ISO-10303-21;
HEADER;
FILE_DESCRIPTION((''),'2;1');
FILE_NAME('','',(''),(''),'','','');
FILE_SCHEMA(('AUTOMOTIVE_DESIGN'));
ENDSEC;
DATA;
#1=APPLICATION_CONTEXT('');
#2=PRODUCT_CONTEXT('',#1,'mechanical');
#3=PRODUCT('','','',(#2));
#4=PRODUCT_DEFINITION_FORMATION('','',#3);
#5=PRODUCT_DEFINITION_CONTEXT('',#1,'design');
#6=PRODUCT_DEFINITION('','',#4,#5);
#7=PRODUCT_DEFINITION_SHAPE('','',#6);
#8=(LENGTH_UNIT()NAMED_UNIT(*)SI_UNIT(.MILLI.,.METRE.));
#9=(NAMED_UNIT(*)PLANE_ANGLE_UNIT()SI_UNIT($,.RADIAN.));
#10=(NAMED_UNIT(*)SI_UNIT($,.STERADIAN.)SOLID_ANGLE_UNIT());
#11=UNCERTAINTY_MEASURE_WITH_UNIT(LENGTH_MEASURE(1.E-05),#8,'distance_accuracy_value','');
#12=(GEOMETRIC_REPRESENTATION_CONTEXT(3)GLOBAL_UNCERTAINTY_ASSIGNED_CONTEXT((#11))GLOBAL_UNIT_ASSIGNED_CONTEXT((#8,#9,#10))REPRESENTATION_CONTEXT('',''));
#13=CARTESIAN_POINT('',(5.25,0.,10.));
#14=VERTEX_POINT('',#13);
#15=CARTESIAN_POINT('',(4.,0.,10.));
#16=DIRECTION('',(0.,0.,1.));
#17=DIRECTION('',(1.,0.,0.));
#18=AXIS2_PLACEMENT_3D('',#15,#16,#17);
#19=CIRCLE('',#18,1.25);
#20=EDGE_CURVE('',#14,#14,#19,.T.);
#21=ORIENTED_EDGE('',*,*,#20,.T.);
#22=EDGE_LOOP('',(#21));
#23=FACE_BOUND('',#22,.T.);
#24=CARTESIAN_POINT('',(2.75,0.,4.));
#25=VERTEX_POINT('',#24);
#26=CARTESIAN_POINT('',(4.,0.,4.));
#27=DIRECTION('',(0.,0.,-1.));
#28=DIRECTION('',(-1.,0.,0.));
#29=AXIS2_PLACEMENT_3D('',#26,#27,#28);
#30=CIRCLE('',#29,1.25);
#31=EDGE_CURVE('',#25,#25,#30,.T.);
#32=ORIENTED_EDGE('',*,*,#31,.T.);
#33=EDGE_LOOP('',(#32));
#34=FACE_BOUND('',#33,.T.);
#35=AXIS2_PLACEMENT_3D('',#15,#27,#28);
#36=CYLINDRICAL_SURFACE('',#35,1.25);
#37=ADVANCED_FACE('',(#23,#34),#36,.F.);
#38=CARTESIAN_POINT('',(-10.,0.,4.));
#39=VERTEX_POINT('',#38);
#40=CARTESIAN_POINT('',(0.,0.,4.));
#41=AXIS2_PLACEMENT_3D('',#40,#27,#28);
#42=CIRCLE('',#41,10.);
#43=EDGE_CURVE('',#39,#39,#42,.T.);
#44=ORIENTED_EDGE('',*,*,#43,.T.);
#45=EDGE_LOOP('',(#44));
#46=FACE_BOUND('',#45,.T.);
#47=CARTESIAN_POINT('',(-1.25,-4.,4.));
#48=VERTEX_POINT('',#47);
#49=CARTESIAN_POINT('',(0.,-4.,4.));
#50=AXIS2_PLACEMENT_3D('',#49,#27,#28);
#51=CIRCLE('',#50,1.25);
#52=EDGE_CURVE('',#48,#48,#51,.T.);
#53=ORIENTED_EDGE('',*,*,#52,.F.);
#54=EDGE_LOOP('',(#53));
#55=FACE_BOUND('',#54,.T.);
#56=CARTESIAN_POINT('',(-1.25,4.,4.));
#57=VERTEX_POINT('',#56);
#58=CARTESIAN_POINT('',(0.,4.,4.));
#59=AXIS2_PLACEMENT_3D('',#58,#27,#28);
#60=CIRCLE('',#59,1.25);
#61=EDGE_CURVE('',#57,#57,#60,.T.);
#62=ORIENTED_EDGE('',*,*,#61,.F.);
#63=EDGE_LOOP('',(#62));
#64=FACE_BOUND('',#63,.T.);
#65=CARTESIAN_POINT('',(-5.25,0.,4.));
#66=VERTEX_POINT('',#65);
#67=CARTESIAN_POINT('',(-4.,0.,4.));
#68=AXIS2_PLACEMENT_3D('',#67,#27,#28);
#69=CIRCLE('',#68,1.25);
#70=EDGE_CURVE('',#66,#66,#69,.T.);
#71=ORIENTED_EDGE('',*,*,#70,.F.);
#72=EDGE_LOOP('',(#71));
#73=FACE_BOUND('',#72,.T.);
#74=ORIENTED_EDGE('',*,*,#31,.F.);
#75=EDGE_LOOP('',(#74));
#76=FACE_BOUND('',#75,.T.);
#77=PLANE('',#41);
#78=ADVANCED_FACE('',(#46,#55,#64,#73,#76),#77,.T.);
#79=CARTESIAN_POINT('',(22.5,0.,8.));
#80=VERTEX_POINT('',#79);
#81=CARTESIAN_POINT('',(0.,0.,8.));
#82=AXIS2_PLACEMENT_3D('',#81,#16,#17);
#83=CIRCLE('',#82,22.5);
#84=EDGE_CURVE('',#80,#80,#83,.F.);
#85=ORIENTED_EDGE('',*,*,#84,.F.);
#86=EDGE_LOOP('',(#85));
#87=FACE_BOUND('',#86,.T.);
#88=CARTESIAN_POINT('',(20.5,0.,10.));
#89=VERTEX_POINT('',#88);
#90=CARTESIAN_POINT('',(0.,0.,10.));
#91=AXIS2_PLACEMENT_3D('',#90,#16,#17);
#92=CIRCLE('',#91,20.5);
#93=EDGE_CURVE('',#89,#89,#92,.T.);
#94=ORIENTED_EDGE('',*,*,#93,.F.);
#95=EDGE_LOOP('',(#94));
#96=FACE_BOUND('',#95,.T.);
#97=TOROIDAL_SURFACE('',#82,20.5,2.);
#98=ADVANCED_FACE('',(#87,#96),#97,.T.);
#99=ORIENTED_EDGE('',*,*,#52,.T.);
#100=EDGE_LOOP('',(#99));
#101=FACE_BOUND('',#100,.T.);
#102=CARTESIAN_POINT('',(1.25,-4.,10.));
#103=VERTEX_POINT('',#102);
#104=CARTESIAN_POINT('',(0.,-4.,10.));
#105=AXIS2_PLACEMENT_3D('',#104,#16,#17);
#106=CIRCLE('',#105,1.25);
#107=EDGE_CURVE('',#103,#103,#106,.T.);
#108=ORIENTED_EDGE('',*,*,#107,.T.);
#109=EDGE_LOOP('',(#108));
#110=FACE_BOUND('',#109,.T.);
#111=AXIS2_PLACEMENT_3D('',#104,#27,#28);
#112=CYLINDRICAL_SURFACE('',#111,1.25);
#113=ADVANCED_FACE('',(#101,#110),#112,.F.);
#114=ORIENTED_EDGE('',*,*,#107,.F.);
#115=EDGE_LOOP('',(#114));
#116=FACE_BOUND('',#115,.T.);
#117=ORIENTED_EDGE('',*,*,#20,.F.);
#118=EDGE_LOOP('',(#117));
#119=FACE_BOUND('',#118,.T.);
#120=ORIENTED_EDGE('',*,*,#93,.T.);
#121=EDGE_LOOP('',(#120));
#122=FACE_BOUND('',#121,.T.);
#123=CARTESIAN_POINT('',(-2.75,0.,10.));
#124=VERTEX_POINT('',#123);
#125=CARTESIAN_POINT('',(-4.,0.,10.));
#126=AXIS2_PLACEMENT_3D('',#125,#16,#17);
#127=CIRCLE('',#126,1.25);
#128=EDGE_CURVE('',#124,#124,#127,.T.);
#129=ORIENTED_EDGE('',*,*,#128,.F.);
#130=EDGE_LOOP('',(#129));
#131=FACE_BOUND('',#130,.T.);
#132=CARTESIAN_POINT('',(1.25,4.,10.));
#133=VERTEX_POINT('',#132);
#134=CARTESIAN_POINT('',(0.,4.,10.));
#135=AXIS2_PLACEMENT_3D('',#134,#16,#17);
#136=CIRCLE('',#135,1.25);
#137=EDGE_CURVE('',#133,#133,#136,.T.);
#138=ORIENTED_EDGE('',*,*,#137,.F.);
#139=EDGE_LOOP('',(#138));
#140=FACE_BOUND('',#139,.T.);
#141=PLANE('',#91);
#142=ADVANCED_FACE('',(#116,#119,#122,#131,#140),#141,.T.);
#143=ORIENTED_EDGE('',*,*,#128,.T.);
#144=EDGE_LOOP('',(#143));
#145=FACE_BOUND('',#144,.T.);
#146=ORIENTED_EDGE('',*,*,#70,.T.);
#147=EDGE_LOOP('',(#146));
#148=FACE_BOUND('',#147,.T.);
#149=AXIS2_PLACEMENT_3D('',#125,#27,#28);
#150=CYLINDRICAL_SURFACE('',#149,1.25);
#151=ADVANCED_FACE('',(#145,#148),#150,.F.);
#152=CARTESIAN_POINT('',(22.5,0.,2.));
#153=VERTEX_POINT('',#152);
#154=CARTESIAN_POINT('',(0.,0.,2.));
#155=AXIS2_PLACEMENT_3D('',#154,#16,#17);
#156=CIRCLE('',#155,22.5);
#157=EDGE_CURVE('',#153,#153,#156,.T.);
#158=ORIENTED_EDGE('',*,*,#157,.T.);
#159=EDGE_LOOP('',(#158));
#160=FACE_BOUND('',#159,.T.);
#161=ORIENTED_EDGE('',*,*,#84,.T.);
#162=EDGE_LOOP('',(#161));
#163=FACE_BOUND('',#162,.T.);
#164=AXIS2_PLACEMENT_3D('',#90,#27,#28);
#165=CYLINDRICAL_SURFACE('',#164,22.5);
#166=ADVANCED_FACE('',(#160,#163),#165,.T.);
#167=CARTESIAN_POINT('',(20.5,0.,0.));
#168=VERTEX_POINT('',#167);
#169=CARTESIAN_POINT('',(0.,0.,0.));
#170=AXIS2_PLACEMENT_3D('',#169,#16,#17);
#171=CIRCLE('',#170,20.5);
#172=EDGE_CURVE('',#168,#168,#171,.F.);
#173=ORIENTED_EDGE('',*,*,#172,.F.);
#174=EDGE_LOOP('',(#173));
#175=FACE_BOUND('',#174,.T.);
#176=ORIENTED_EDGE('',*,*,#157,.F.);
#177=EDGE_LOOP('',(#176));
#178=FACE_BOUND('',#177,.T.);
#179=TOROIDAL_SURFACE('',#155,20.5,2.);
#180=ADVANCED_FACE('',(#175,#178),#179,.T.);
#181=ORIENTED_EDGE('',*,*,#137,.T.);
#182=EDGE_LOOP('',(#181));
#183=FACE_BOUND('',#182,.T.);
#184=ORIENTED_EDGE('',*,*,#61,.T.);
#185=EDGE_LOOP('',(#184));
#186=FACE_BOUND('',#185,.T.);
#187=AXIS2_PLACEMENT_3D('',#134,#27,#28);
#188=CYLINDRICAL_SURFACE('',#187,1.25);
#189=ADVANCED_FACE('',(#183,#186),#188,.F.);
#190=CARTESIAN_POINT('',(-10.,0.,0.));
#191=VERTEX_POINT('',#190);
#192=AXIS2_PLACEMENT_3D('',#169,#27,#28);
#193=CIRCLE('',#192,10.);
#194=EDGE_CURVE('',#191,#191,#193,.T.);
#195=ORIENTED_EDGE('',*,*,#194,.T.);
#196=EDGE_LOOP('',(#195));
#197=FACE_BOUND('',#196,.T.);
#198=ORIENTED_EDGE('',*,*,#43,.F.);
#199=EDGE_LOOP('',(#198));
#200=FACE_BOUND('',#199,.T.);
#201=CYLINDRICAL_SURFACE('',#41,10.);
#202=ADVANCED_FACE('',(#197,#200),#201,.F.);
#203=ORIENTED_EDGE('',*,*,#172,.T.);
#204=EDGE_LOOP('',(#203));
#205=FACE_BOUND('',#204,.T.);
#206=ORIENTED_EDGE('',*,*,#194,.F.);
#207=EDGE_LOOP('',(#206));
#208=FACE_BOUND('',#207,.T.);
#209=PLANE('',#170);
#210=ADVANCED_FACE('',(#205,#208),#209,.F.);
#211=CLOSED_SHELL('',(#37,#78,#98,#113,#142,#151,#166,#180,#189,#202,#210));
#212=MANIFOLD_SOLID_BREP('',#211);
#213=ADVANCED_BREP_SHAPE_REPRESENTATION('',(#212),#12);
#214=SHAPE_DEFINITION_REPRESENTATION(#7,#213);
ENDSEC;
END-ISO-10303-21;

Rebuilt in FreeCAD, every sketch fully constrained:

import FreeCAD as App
import Part
import Sketcher


def edges_at(feature, points):
    """Names of the edges that pass closest to the given points."""
    edges = feature.Shape.Edges
    near = lambda p: min(range(len(edges)), key=lambda i: edges[i].distToShape(Part.Vertex(*p))[0])
    return sorted({f"Edge{near(p) + 1}" for p in points})

doc = App.newDocument("Part")
params = doc.addObject("Spreadsheet::Sheet", "Params")
for row, (alias, value) in enumerate([
    ("sketch1_diameter", "45 mm"),
    ("sketch1_diameter2", "2.5 mm"),
    ("pad1_length", "10 mm"),
    ("sketch2_diameter", "20 mm"),
    ("pocket1_length", "4 mm"),
    ("fillet_radius", "2 mm"),
], start=1):
    params.set(f"A{row}", alias)
    params.set(f"B{row}", "=" + value)
    params.setAlias(f"B{row}", alias)

body = doc.addObject("PartDesign::Body", "Body")

sketch1 = body.newObject("Sketcher::SketchObject", "Sketch")
sketch1.AttachmentSupport = (doc.getObject("XY_Plane"), [""])
sketch1.MapMode = "FlatFace"
sketch1.addGeometry([
    Part.Circle(App.Vector(0, 0, 0), App.Vector(0, 0, 1), 22.5),
    Part.Circle(App.Vector(0, -4, 0), App.Vector(0, 0, 1), 1.2),
    Part.Circle(App.Vector(-4, 0, 0), App.Vector(0, 0, 1), 1.2),
    Part.Circle(App.Vector(4, 0, 0), App.Vector(0, 0, 1), 1.2),
    Part.Circle(App.Vector(0, 4, 0), App.Vector(0, 0, 1), 1.2),
], False)
sketch1.addConstraint([
    Sketcher.Constraint("Coincident", 0, 3, -1, 1),
    Sketcher.Constraint("Equal", 1, 2),
    Sketcher.Constraint("Equal", 2, 3),
    Sketcher.Constraint("Equal", 3, 4),
    Sketcher.Constraint("Symmetric", 2, 3, 3, 3, -1, 1),
    Sketcher.Constraint("Symmetric", 1, 3, 4, 3, -1, 1),
    Sketcher.Constraint("PointOnObject", 1, 3, -2),
    Sketcher.Constraint("PointOnObject", 2, 3, -1),
    Sketcher.Constraint("Diameter", 0, 45.0),
    Sketcher.Constraint("Diameter", 1, 2.5),
    Sketcher.Constraint("DistanceY", 1, 3, -1, 1, 4.0),
    Sketcher.Constraint("DistanceX", 2, 3, -1, 1, 4.0),
])
sketch1.setExpression("Constraints[8]", "Params.sketch1_diameter")
sketch1.setExpression("Constraints[9]", "Params.sketch1_diameter2")
pad1 = body.newObject("PartDesign::Pad", "Pad")
pad1.Profile = sketch1
pad1.setExpression("Length", "Params.pad1_length")

sketch2 = body.newObject("Sketcher::SketchObject", "Sketch001")
sketch2.AttachmentSupport = (doc.getObject("XY_Plane"), [""])
sketch2.MapMode = "FlatFace"
sketch2.addGeometry(Part.Circle(App.Vector(0, 0, 0), App.Vector(0, 0, 1), 10), False)
sketch2.addConstraint([
    Sketcher.Constraint("Coincident", 0, 3, -1, 1),
    Sketcher.Constraint("Diameter", 0, 20.0),
])
sketch2.setExpression("Constraints[1]", "Params.sketch2_diameter")
pocket1 = body.newObject("PartDesign::Pocket", "Pocket")
pocket1.Profile = sketch2
pocket1.setExpression("Length", "Params.pocket1_length")
pocket1.Reversed = True
doc.recompute()

fillet = body.newObject("PartDesign::Fillet", "Fillet")
fillet.Base = (pocket1, edges_at(pocket1, [(-22.5, 0, 0), (-22.5, 0, 10)]))
fillet.setExpression("Radius", "Params.fillet_radius")

doc.recompute()
